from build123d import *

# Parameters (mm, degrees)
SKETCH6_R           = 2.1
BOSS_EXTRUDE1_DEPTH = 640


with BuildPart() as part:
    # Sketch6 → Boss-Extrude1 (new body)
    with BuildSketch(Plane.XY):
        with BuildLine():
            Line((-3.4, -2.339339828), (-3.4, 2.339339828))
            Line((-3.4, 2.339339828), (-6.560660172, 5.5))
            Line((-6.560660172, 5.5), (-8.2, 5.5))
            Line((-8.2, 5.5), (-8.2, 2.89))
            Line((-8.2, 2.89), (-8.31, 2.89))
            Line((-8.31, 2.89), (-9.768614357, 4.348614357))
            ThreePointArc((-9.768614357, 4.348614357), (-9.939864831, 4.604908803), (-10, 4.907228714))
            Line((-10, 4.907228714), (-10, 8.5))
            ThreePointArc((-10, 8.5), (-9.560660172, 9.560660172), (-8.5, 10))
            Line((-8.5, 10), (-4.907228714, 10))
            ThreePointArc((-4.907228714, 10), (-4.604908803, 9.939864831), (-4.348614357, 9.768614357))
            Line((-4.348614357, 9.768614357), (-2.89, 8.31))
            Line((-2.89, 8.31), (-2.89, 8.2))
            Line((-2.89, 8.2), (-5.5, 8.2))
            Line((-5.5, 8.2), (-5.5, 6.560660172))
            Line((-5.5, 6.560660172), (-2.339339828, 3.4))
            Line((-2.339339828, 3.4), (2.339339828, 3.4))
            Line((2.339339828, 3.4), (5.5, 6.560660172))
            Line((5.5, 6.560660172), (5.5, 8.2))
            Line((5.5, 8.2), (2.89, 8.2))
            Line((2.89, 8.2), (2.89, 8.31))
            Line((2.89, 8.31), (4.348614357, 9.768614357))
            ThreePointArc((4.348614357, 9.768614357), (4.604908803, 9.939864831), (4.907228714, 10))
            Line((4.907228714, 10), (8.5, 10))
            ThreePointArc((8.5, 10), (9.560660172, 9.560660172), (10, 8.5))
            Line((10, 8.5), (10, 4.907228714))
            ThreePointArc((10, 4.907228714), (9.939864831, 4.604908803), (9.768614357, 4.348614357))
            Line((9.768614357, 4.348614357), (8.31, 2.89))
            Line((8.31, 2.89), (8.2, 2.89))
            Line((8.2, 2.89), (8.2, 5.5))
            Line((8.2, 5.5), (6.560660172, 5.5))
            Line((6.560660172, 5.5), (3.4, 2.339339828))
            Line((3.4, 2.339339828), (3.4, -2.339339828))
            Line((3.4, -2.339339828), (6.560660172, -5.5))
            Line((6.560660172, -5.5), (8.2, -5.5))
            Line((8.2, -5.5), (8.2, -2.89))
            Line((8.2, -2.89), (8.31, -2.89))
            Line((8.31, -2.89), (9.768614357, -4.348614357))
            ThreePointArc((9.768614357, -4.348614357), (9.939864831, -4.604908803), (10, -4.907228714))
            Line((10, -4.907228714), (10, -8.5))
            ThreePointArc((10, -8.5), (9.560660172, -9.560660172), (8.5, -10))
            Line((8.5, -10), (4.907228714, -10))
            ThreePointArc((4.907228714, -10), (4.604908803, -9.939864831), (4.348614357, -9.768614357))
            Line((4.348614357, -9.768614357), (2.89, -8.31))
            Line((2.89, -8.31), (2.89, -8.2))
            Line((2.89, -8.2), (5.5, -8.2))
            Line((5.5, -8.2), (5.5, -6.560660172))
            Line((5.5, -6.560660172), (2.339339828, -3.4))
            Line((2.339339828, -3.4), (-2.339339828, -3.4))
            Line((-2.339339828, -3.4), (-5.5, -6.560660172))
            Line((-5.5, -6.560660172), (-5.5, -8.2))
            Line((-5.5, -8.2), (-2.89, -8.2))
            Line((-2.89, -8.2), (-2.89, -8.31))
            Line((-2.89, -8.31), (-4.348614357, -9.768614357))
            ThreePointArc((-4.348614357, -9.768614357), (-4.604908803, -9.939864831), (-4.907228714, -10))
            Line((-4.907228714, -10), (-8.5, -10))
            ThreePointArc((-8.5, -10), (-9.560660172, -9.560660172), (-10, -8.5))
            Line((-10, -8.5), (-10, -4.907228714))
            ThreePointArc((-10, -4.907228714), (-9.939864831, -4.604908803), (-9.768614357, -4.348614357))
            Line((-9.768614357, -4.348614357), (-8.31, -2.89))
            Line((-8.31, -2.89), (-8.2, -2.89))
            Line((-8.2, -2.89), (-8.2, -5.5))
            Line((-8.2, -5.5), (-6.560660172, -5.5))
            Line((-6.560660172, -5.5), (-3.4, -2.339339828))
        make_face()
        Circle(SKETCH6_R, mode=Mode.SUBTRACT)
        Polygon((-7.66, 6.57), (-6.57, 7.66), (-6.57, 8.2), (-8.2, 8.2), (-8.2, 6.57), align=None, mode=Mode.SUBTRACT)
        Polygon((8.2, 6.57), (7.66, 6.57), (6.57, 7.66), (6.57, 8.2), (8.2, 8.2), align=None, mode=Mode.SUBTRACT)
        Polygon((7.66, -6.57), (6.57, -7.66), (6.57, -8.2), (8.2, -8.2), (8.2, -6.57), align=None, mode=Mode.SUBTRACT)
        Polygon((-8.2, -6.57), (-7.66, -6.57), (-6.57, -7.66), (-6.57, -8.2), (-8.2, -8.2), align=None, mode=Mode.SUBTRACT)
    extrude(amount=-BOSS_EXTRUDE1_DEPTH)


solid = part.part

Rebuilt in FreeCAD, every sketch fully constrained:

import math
import FreeCAD as App
import Part
import Sketcher
from FreeCAD import Vector
Q = App.Units.Quantity


def add_polygon(sketch, points):
    """Adds a closed chain of lines whose ends are joined by coincident constraints."""
    first, n = sketch.GeometryCount, len(points)
    for a, b in zip(points, points[1:] + points[:1]):
        sketch.addGeometry(Part.LineSegment(App.Vector(*a, 0), App.Vector(*b, 0)), False)
    for i in range(n):
        sketch.addConstraint(Sketcher.Constraint("Coincident", first + i, 2, first + (i + 1) % n, 1))

doc = App.newDocument("Part")
body = doc.addObject("PartDesign::Body", "Body")

# Sketch on XY plane
sketch1 = body.newObject("Sketcher::SketchObject", "Sketch")
sketch1.AttachmentSupport = (doc.getObject("XY_Plane"), [""])
sketch1.MapMode = "FlatFace"
sketch1.addGeometry(Part.LineSegment(Vector(-3.4, 2.34, 0), Vector(-3.4, -2.34, 0)), False)  # 0
sketch1.addGeometry(Part.LineSegment(Vector(-3.4, -2.34, 0), Vector(-6.56, -5.5, 0)), False)  # 1
sketch1.addGeometry(Part.LineSegment(Vector(-6.56, -5.5, 0), Vector(-8.2, -5.5, 0)), False)  # 2
sketch1.addGeometry(Part.LineSegment(Vector(-8.2, -5.5, 0), Vector(-8.2, -2.89, 0)), False)  # 3
sketch1.addGeometry(Part.LineSegment(Vector(-8.2, -2.89, 0), Vector(-8.31, -2.89, 0)), False)  # 4
sketch1.addGeometry(Part.LineSegment(Vector(-8.31, -2.89, 0), Vector(-9.77, -4.35, 0)), False)  # 5
sketch1.addGeometry(Part.ArcOfCircle(Part.Circle(Vector(-9.21, -4.91, 0), Vector(0, 0, 1), 0.79), math.radians(135), math.radians(180)), False)  # 6
sketch1.addGeometry(Part.LineSegment(Vector(-10, -4.91, 0), Vector(-10, -8.5, 0)), False)  # 7
sketch1.addGeometry(Part.ArcOfCircle(Part.Circle(Vector(-8.5, -8.5, 0), Vector(0, 0, 1), 1.5), math.radians(180), math.radians(270)), False)  # 8
sketch1.addGeometry(Part.LineSegment(Vector(-8.5, -10, 0), Vector(-4.91, -10, 0)), False)  # 9
sketch1.addGeometry(Part.ArcOfCircle(Part.Circle(Vector(-4.91, -9.21, 0), Vector(0, 0, 1), 0.79), math.radians(-90), math.radians(-45)), False)  # 10
sketch1.addGeometry(Part.LineSegment(Vector(-4.35, -9.77, 0), Vector(-2.89, -8.31, 0)), False)  # 11
sketch1.addGeometry(Part.LineSegment(Vector(-2.89, -8.31, 0), Vector(-2.89, -8.2, 0)), False)  # 12
sketch1.addGeometry(Part.LineSegment(Vector(-2.89, -8.2, 0), Vector(-5.5, -8.2, 0)), False)  # 13
sketch1.addGeometry(Part.LineSegment(Vector(-5.5, -8.2, 0), Vector(-5.5, -6.56, 0)), False)  # 14
sketch1.addGeometry(Part.LineSegment(Vector(-5.5, -6.56, 0), Vector(-2.34, -3.4, 0)), False)  # 15
sketch1.addGeometry(Part.LineSegment(Vector(-2.34, -3.4, 0), Vector(2.34, -3.4, 0)), False)  # 16
sketch1.addGeometry(Part.LineSegment(Vector(2.34, -3.4, 0), Vector(5.5, -6.56, 0)), False)  # 17
sketch1.addGeometry(Part.LineSegment(Vector(5.5, -6.56, 0), Vector(5.5, -8.2, 0)), False)  # 18
sketch1.addGeometry(Part.LineSegment(Vector(5.5, -8.2, 0), Vector(2.89, -8.2, 0)), False)  # 19
sketch1.addGeometry(Part.LineSegment(Vector(2.89, -8.2, 0), Vector(2.89, -8.31, 0)), False)  # 20
sketch1.addGeometry(Part.LineSegment(Vector(2.89, -8.31, 0), Vector(4.35, -9.77, 0)), False)  # 21
sketch1.addGeometry(Part.ArcOfCircle(Part.Circle(Vector(4.91, -9.21, 0), Vector(0, 0, 1), 0.79), math.radians(-135), math.radians(-90)), False)  # 22
sketch1.addGeometry(Part.LineSegment(Vector(4.91, -10, 0), Vector(8.5, -10, 0)), False)  # 23
sketch1.addGeometry(Part.ArcOfCircle(Part.Circle(Vector(8.5, -8.5, 0), Vector(0, 0, 1), 1.5), math.radians(-90), math.radians(0)), False)  # 24
sketch1.addGeometry(Part.LineSegment(Vector(10, -8.5, 0), Vector(10, -4.91, 0)), False)  # 25
sketch1.addGeometry(Part.ArcOfCircle(Part.Circle(Vector(9.21, -4.91, 0), Vector(0, 0, 1), 0.79), math.radians(0), math.radians(45)), False)  # 26
sketch1.addGeometry(Part.LineSegment(Vector(9.77, -4.35, 0), Vector(8.31, -2.89, 0)), False)  # 27
sketch1.addGeometry(Part.LineSegment(Vector(8.31, -2.89, 0), Vector(8.2, -2.89, 0)), False)  # 28
sketch1.addGeometry(Part.LineSegment(Vector(8.2, -2.89, 0), Vector(8.2, -5.5, 0)), False)  # 29
sketch1.addGeometry(Part.LineSegment(Vector(8.2, -5.5, 0), Vector(6.56, -5.5, 0)), False)  # 30
sketch1.addGeometry(Part.LineSegment(Vector(6.56, -5.5, 0), Vector(3.4, -2.34, 0)), False)  # 31
sketch1.addGeometry(Part.LineSegment(Vector(3.4, -2.34, 0), Vector(3.4, 2.34, 0)), False)  # 32
sketch1.addGeometry(Part.LineSegment(Vector(3.4, 2.34, 0), Vector(6.56, 5.5, 0)), False)  # 33
sketch1.addGeometry(Part.LineSegment(Vector(6.56, 5.5, 0), Vector(8.2, 5.5, 0)), False)  # 34
sketch1.addGeometry(Part.LineSegment(Vector(8.2, 5.5, 0), Vector(8.2, 2.89, 0)), False)  # 35
sketch1.addGeometry(Part.LineSegment(Vector(8.2, 2.89, 0), Vector(8.31, 2.89, 0)), False)  # 36
sketch1.addGeometry(Part.LineSegment(Vector(8.31, 2.89, 0), Vector(9.77, 4.35, 0)), False)  # 37
sketch1.addGeometry(Part.ArcOfCircle(Part.Circle(Vector(9.21, 4.91, 0), Vector(0, 0, 1), 0.79), math.radians(-45), math.radians(0)), False)  # 38
sketch1.addGeometry(Part.LineSegment(Vector(10, 4.91, 0), Vector(10, 8.5, 0)), False)  # 39
sketch1.addGeometry(Part.ArcOfCircle(Part.Circle(Vector(8.5, 8.5, 0), Vector(0, 0, 1), 1.5), math.radians(0), math.radians(90)), False)  # 40
sketch1.addGeometry(Part.LineSegment(Vector(8.5, 10, 0), Vector(4.91, 10, 0)), False)  # 41
sketch1.addGeometry(Part.ArcOfCircle(Part.Circle(Vector(4.91, 9.21, 0), Vector(0, 0, 1), 0.79), math.radians(90), math.radians(135)), False)  # 42
sketch1.addGeometry(Part.LineSegment(Vector(4.35, 9.77, 0), Vector(2.89, 8.31, 0)), False)  # 43
sketch1.addGeometry(Part.LineSegment(Vector(2.89, 8.31, 0), Vector(2.89, 8.2, 0)), False)  # 44
sketch1.addGeometry(Part.LineSegment(Vector(2.89, 8.2, 0), Vector(5.5, 8.2, 0)), False)  # 45
sketch1.addGeometry(Part.LineSegment(Vector(5.5, 8.2, 0), Vector(5.5, 6.56, 0)), False)  # 46
sketch1.addGeometry(Part.LineSegment(Vector(5.5, 6.56, 0), Vector(2.34, 3.4, 0)), False)  # 47
sketch1.addGeometry(Part.LineSegment(Vector(2.34, 3.4, 0), Vector(-2.34, 3.4, 0)), False)  # 48
sketch1.addGeometry(Part.LineSegment(Vector(-2.34, 3.4, 0), Vector(-5.5, 6.56, 0)), False)  # 49
sketch1.addGeometry(Part.LineSegment(Vector(-5.5, 6.56, 0), Vector(-5.5, 8.2, 0)), False)  # 50
sketch1.addGeometry(Part.LineSegment(Vector(-5.5, 8.2, 0), Vector(-2.89, 8.2, 0)), False)  # 51
sketch1.addGeometry(Part.LineSegment(Vector(-2.89, 8.2, 0), Vector(-2.89, 8.31, 0)), False)  # 52
sketch1.addGeometry(Part.LineSegment(Vector(-2.89, 8.31, 0), Vector(-4.35, 9.77, 0)), False)  # 53
sketch1.addGeometry(Part.ArcOfCircle(Part.Circle(Vector(-4.91, 9.21, 0), Vector(0, 0, 1), 0.79), math.radians(45), math.radians(90)), False)  # 54
sketch1.addGeometry(Part.LineSegment(Vector(-4.91, 10, 0), Vector(-8.5, 10, 0)), False)  # 55
sketch1.addGeometry(Part.ArcOfCircle(Part.Circle(Vector(-8.5, 8.5, 0), Vector(0, 0, 1), 1.5), math.radians(90), math.radians(180)), False)  # 56
sketch1.addGeometry(Part.LineSegment(Vector(-10, 8.5, 0), Vector(-10, 4.91, 0)), False)  # 57
sketch1.addGeometry(Part.ArcOfCircle(Part.Circle(Vector(-9.21, 4.91, 0), Vector(0, 0, 1), 0.79), math.radians(180), math.radians(225)), False)  # 58
sketch1.addGeometry(Part.LineSegment(Vector(-9.77, 4.35, 0), Vector(-8.31, 2.89, 0)), False)  # 59
sketch1.addGeometry(Part.LineSegment(Vector(-8.31, 2.89, 0), Vector(-8.2, 2.89, 0)), False)  # 60
sketch1.addGeometry(Part.LineSegment(Vector(-8.2, 2.89, 0), Vector(-8.2, 5.5, 0)), False)  # 61
sketch1.addGeometry(Part.LineSegment(Vector(-8.2, 5.5, 0), Vector(-6.56, 5.5, 0)), False)  # 62
sketch1.addGeometry(Part.LineSegment(Vector(-6.56, 5.5, 0), Vector(-3.4, 2.34, 0)), False)  # 63
add_polygon(sketch1, [(7.66, -6.57), (8.2, -6.57), (8.2, -8.2), (6.57, -8.2), (6.57, -7.66)])  # lines 64-68
add_polygon(sketch1, [(-8.2, -6.57), (-7.66, -6.57), (-6.57, -7.66), (-6.57, -8.2), (-8.2, -8.2)])  # lines 69-73
add_polygon(sketch1, [(8.2, 6.57), (7.66, 6.57), (6.57, 7.66), (6.57, 8.2), (8.2, 8.2)])  # lines 74-78
sketch1.addGeometry(Part.Circle(Vector(0, 0, 0), Vector(0, 0, 1), 2.1), False)  # 79
add_polygon(sketch1, [(-7.66, 6.57), (-8.2, 6.57), (-8.2, 8.2), (-6.57, 8.2), (-6.57, 7.66)])  # lines 80-84
sketch1.addConstraint(Sketcher.Constraint("Coincident", 0, 2, 1, 1))
sketch1.addConstraint(Sketcher.Constraint("Coincident", 1, 2, 2, 1))
sketch1.addConstraint(Sketcher.Constraint("Coincident", 2, 2, 3, 1))
sketch1.addConstraint(Sketcher.Constraint("Coincident", 3, 2, 4, 1))
sketch1.addConstraint(Sketcher.Constraint("Coincident", 4, 2, 5, 1))
sketch1.addConstraint(Sketcher.Constraint("Tangent", 5, 2, 6, 1))
sketch1.addConstraint(Sketcher.Constraint("Tangent", 6, 2, 7, 1))
sketch1.addConstraint(Sketcher.Constraint("Tangent", 7, 2, 8, 1))
sketch1.addConstraint(Sketcher.Constraint("Tangent", 8, 2, 9, 1))
sketch1.addConstraint(Sketcher.Constraint("Tangent", 9, 2, 10, 1))
sketch1.addConstraint(Sketcher.Constraint("Tangent", 10, 2, 11, 1))
sketch1.addConstraint(Sketcher.Constraint("Coincident", 11, 2, 12, 1))
sketch1.addConstraint(Sketcher.Constraint("Coincident", 12, 2, 13, 1))
sketch1.addConstraint(Sketcher.Constraint("Coincident", 13, 2, 14, 1))
sketch1.addConstraint(Sketcher.Constraint("Coincident", 14, 2, 15, 1))
sketch1.addConstraint(Sketcher.Constraint("Coincident", 15, 2, 16, 1))
sketch1.addConstraint(Sketcher.Constraint("Coincident", 16, 2, 17, 1))
sketch1.addConstraint(Sketcher.Constraint("Coincident", 17, 2, 18, 1))
sketch1.addConstraint(Sketcher.Constraint("Coincident", 18, 2, 19, 1))
sketch1.addConstraint(Sketcher.Constraint("Coincident", 19, 2, 20, 1))
sketch1.addConstraint(Sketcher.Constraint("Coincident", 20, 2, 21, 1))
sketch1.addConstraint(Sketcher.Constraint("Tangent", 21, 2, 22, 1))
sketch1.addConstraint(Sketcher.Constraint("Tangent", 22, 2, 23, 1))
sketch1.addConstraint(Sketcher.Constraint("Tangent", 23, 2, 24, 1))
sketch1.addConstraint(Sketcher.Constraint("Tangent", 24, 2, 25, 1))
sketch1.addConstraint(Sketcher.Constraint("Tangent", 25, 2, 26, 1))
sketch1.addConstraint(Sketcher.Constraint("Tangent", 26, 2, 27, 1))
sketch1.addConstraint(Sketcher.Constraint("Coincident", 27, 2, 28, 1))
sketch1.addConstraint(Sketcher.Constraint("Coincident", 28, 2, 29, 1))
sketch1.addConstraint(Sketcher.Constraint("Coincident", 29, 2, 30, 1))
sketch1.addConstraint(Sketcher.Constraint("Coincident", 30, 2, 31, 1))
sketch1.addConstraint(Sketcher.Constraint("Coincident", 31, 2, 32, 1))
sketch1.addConstraint(Sketcher.Constraint("Coincident", 32, 2, 33, 1))
sketch1.addConstraint(Sketcher.Constraint("Coincident", 33, 2, 34, 1))
sketch1.addConstraint(Sketcher.Constraint("Coincident", 34, 2, 35, 1))
sketch1.addConstraint(Sketcher.Constraint("Coincident", 35, 2, 36, 1))
sketch1.addConstraint(Sketcher.Constraint("Coincident", 36, 2, 37, 1))
sketch1.addConstraint(Sketcher.Constraint("Tangent", 37, 2, 38, 1))
sketch1.addConstraint(Sketcher.Constraint("Tangent", 38, 2, 39, 1))
sketch1.addConstraint(Sketcher.Constraint("Tangent", 39, 2, 40, 1))
sketch1.addConstraint(Sketcher.Constraint("Tangent", 40, 2, 41, 1))
sketch1.addConstraint(Sketcher.Constraint("Tangent", 41, 2, 42, 1))
sketch1.addConstraint(Sketcher.Constraint("Tangent", 42, 2, 43, 1))
sketch1.addConstraint(Sketcher.Constraint("Coincident", 43, 2, 44, 1))
sketch1.addConstraint(Sketcher.Constraint("Coincident", 44, 2, 45, 1))
sketch1.addConstraint(Sketcher.Constraint("Coincident", 45, 2, 46, 1))
sketch1.addConstraint(Sketcher.Constraint("Coincident", 46, 2, 47, 1))
sketch1.addConstraint(Sketcher.Constraint("Coincident", 47, 2, 48, 1))
sketch1.addConstraint(Sketcher.Constraint("Coincident", 48, 2, 49, 1))
sketch1.addConstraint(Sketcher.Constraint("Coincident", 49, 2, 50, 1))
sketch1.addConstraint(Sketcher.Constraint("Coincident", 50, 2, 51, 1))
sketch1.addConstraint(Sketcher.Constraint("Coincident", 51, 2, 52, 1))
sketch1.addConstraint(Sketcher.Constraint("Coincident", 52, 2, 53, 1))
sketch1.addConstraint(Sketcher.Constraint("Tangent", 53, 2, 54, 1))
sketch1.addConstraint(Sketcher.Constraint("Tangent", 54, 2, 55, 1))
sketch1.addConstraint(Sketcher.Constraint("Tangent", 55, 2, 56, 1))
sketch1.addConstraint(Sketcher.Constraint("Tangent", 56, 2, 57, 1))
sketch1.addConstraint(Sketcher.Constraint("Tangent", 57, 2, 58, 1))
sketch1.addConstraint(Sketcher.Constraint("Tangent", 58, 2, 59, 1))
sketch1.addConstraint(Sketcher.Constraint("Coincident", 59, 2, 60, 1))
sketch1.addConstraint(Sketcher.Constraint("Coincident", 60, 2, 61, 1))
sketch1.addConstraint(Sketcher.Constraint("Coincident", 61, 2, 62, 1))
sketch1.addConstraint(Sketcher.Constraint("Coincident", 62, 2, 63, 1))
sketch1.addConstraint(Sketcher.Constraint("Coincident", 63, 2, 0, 1))
sketch1.addConstraint(Sketcher.Constraint("Vertical", 0))
sketch1.addConstraint(Sketcher.Constraint("Horizontal", 2))
sketch1.addConstraint(Sketcher.Constraint("Vertical", 3))
sketch1.addConstraint(Sketcher.Constraint("Horizontal", 4))
sketch1.addConstraint(Sketcher.Constraint("Vertical", 7))
sketch1.addConstraint(Sketcher.Constraint("Horizontal", 9))
sketch1.addConstraint(Sketcher.Constraint("Vertical", 12))
sketch1.addConstraint(Sketcher.Constraint("Horizontal", 13))
sketch1.addConstraint(Sketcher.Constraint("Vertical", 14))
sketch1.addConstraint(Sketcher.Constraint("Horizontal", 16))
sketch1.addConstraint(Sketcher.Constraint("Vertical", 18))
sketch1.addConstraint(Sketcher.Constraint("Horizontal", 19))
sketch1.addConstraint(Sketcher.Constraint("Vertical", 20))
sketch1.addConstraint(Sketcher.Constraint("Horizontal", 23))
sketch1.addConstraint(Sketcher.Constraint("Vertical", 25))
sketch1.addConstraint(Sketcher.Constraint("Horizontal", 28))
sketch1.addConstraint(Sketcher.Constraint("Vertical", 29))
sketch1.addConstraint(Sketcher.Constraint("Horizontal", 30))
sketch1.addConstraint(Sketcher.Constraint("Vertical", 32))
sketch1.addConstraint(Sketcher.Constraint("Horizontal", 34))
sketch1.addConstraint(Sketcher.Constraint("Vertical", 35))
sketch1.addConstraint(Sketcher.Constraint("Horizontal", 36))
sketch1.addConstraint(Sketcher.Constraint("Vertical", 39))
sketch1.addConstraint(Sketcher.Constraint("Horizontal", 41))
sketch1.addConstraint(Sketcher.Constraint("Vertical", 44))
sketch1.addConstraint(Sketcher.Constraint("Horizontal", 45))
sketch1.addConstraint(Sketcher.Constraint("Vertical", 46))
sketch1.addConstraint(Sketcher.Constraint("Horizontal", 48))
sketch1.addConstraint(Sketcher.Constraint("Vertical", 50))
sketch1.addConstraint(Sketcher.Constraint("Horizontal", 51))
sketch1.addConstraint(Sketcher.Constraint("Vertical", 52))
sketch1.addConstraint(Sketcher.Constraint("Horizontal", 55))
sketch1.addConstraint(Sketcher.Constraint("Vertical", 57))
sketch1.addConstraint(Sketcher.Constraint("Horizontal", 60))
sketch1.addConstraint(Sketcher.Constraint("Vertical", 61))
sketch1.addConstraint(Sketcher.Constraint("Horizontal", 62))
sketch1.addConstraint(Sketcher.Constraint("Horizontal", 64))
sketch1.addConstraint(Sketcher.Constraint("Vertical", 65))
sketch1.addConstraint(Sketcher.Constraint("Horizontal", 66))
sketch1.addConstraint(Sketcher.Constraint("Vertical", 67))
sketch1.addConstraint(Sketcher.Constraint("Horizontal", 69))
sketch1.addConstraint(Sketcher.Constraint("Vertical", 71))
sketch1.addConstraint(Sketcher.Constraint("Horizontal", 72))
sketch1.addConstraint(Sketcher.Constraint("Vertical", 73))
sketch1.addConstraint(Sketcher.Constraint("Horizontal", 74))
sketch1.addConstraint(Sketcher.Constraint("Vertical", 76))
sketch1.addConstraint(Sketcher.Constraint("Horizontal", 77))
sketch1.addConstraint(Sketcher.Constraint("Vertical", 78))
sketch1.addConstraint(Sketcher.Constraint("Horizontal", 80))
sketch1.addConstraint(Sketcher.Constraint("Vertical", 81))
sketch1.addConstraint(Sketcher.Constraint("Horizontal", 82))
sketch1.addConstraint(Sketcher.Constraint("Vertical", 83))
sketch1.addConstraint(Sketcher.Constraint("Coincident", 79, 3, -1, 1))
sketch1.addConstraint(Sketcher.Constraint("Equal", 6, 10))
sketch1.addConstraint(Sketcher.Constraint("Equal", 10, 22))
sketch1.addConstraint(Sketcher.Constraint("Equal", 8, 24))
sketch1.addConstraint(Sketcher.Constraint("Equal", 22, 26))
sketch1.addConstraint(Sketcher.Constraint("Equal", 26, 38))
sketch1.addConstraint(Sketcher.Constraint("Equal", 24, 40))
sketch1.addConstraint(Sketcher.Constraint("Equal", 38, 42))
sketch1.addConstraint(Sketcher.Constraint("Equal", 42, 54))
sketch1.addConstraint(Sketcher.Constraint("Equal", 40, 56))
sketch1.addConstraint(Sketcher.Constraint("Equal", 54, 58))
sketch1.addConstraint(Sketcher.Constraint("Symmetric", 6, 3, 38, 3, -1, 1))
sketch1.addConstraint(Sketcher.Constraint("Symmetric", 10, 3, 42, 3, -1, 1))
sketch1.addConstraint(Sketcher.Constraint("Symmetric", 22, 3, 54, 3, -1, 1))
sketch1.addConstraint(Sketcher.Constraint("Symmetric", 26, 3, 58, 3, -1, 1))
sketch1.addConstraint(Sketcher.Constraint("Symmetric", 0, 2, 32, 2, -1, 1))
sketch1.addConstraint(Sketcher.Constraint("Symmetric", 1, 2, 33, 2, -1, 1))
sketch1.addConstraint(Sketcher.Constraint("Symmetric", 3, 2, 35, 2, -1, 1))
sketch1.addConstraint(Sketcher.Constraint("Symmetric", 11, 2, 43, 2, -1, 1))
sketch1.addConstraint(Sketcher.Constraint("Symmetric", 13, 2, 45, 2, -1, 1))
sketch1.addConstraint(Sketcher.Constraint("Symmetric", 15, 2, 47, 2, -1, 1))
sketch1.addConstraint(Sketcher.Constraint("Symmetric", 17, 2, 49, 2, -1, 1))
sketch1.addConstraint(Sketcher.Constraint("Symmetric", 19, 2, 51, 2, -1, 1))
sketch1.addConstraint(Sketcher.Constraint("Symmetric", 27, 2, 59, 2, -1, 1))
sketch1.addConstraint(Sketcher.Constraint("Symmetric", 29, 2, 61, 2, -1, 1))
sketch1.addConstraint(Sketcher.Constraint("Symmetric", 69, 2, 74, 2, -1, 1))
sketch1.addConstraint(Sketcher.Constraint("Symmetric", 70, 2, 75, 2, -1, 1))
sketch1.addConstraint(Sketcher.Constraint("Symmetric", 72, 2, 77, 2, -1, 1))
sketch1.addConstraint(Sketcher.Constraint("Symmetric", 64, 2, 80, 2, -1, 1))
sketch1.addConstraint(Sketcher.Constraint("Symmetric", 66, 2, 82, 2, -1, 1))
sketch1.addConstraint(Sketcher.Constraint("Symmetric", 10, 3, 22, 3, -2))
sketch1.addConstraint(Sketcher.Constraint("Symmetric", 6, 3, 26, 3, -2))
sketch1.addConstraint(Sketcher.Constraint("Symmetric", 14, 2, 17, 2, -2))
sketch1.addConstraint(Sketcher.Constraint("Symmetric", 12, 2, 19, 2, -2))
sketch1.addConstraint(Sketcher.Constraint("Symmetric", 4, 2, 27, 2, -2))
sketch1.addConstraint(Sketcher.Constraint("Symmetric", 2, 2, 29, 2, -2))
sketch1.addConstraint(Sketcher.Constraint("Symmetric", 68, 2, 69, 2, -2))
sketch1.addConstraint(Sketcher.Constraint("Symmetric", 67, 2, 70, 2, -2))
sketch1.addConstraint(Sketcher.Constraint("Symmetric", 65, 2, 72, 2, -2))
sketch1.addConstraint(Sketcher.Constraint("Parallel", 1, 5))
sketch1.addConstraint(Sketcher.Constraint("Parallel", 5, 11))
sketch1.addConstraint(Sketcher.Constraint("Parallel", 11, 15))
sketch1.addConstraint(Sketcher.Constraint("Perpendicular", 15, 17))
sketch1.addConstraint(Sketcher.Constraint("Parallel", 17, 21))
sketch1.addConstraint(Sketcher.Constraint("Parallel", 21, 27))
sketch1.addConstraint(Sketcher.Constraint("Parallel", 27, 31))
sketch1.addConstraint(Sketcher.Constraint("Parallel", 33, 37))
sketch1.addConstraint(Sketcher.Constraint("Parallel", 43, 47))
sketch1.addConstraint(Sketcher.Constraint("Perpendicular", 47, 49))
sketch1.addConstraint(Sketcher.Constraint("Parallel", 49, 53))
sketch1.addConstraint(Sketcher.Constraint("Parallel", 59, 63))
sketch1.addConstraint(Sketcher.Constraint("Perpendicular", 63, 68))
sketch1.addConstraint(Sketcher.Constraint("Perpendicular", 75, 84))
sketch1.addConstraint(Sketcher.Constraint("Horizontal", 0, 2, 31, 2))
sketch1.addConstraint(Sketcher.Constraint("Horizontal", 32, 2, 63, 2))
sketch1.addConstraint(Sketcher.Constraint("Horizontal", 19, 2, 65, 2))
sketch1.addConstraint(Sketcher.Constraint("Horizontal", 75, 2, 83, 2))
sketch1.addConstraint(Sketcher.Constraint("Vertical", 35, 2, 64, 2))
sketch1.addConstraint(Sketcher.Constraint("Equal", 48, 0))
sketch1.addConstraint(Sketcher.Constraint("Equal", 51, 3))
sketch1.addConstraint(Sketcher.Constraint("Equal", 55, 7))
sketch1.addConstraint(Sketcher.Constraint("Equal", 60, 12))
sketch1.addConstraint(Sketcher.Constraint("Equal", 62, 14))
sketch1.addConstraint(Sketcher.Constraint("Equal", 82, 65))
sketch1.addConstraint(Sketcher.Constraint("Equal", 5, 11))
sketch1.addConstraint(Sketcher.Constraint("Equal", 1, 15))
sketch1.addConstraint(Sketcher.Constraint("Diameter", 79, Q("4.2 mm")))
sketch1.addConstraint(Sketcher.Constraint("Radius", 8, Q("1.5 mm")))
sketch1.addConstraint(Sketcher.Constraint("Radius", 6, Q("0.79 mm")))
sketch1.addConstraint(Sketcher.Constraint("DistanceX", 6, 2, -1, 1, Q("10 mm")))
sketch1.addConstraint(Sketcher.Constraint("DistanceX", 4, 2, 4, 1, Q("0.11 mm")))
sketch1.addConstraint(Sketcher.Constraint("DistanceX", 13, 2, 13, 1, Q("2.61 mm")))
sketch1.addConstraint(Sketcher.Constraint("DistanceX", 64, 1, 64, 2, Q("0.54 mm")))
sketch1.addConstraint(Sketcher.Constraint("DistanceX", 66, 2, 66, 1, Q("1.63 mm")))
sketch1.addConstraint(Sketcher.Constraint("DistanceX", 0, 2, -1, 1, Q("3.4 mm")))
sketch1.addConstraint(Sketcher.Constraint("DistanceY", 1, 2, -1, 1, Q("5.5 mm")))
sketch1.addConstraint(Sketcher.Constraint("DistanceX", 2, 2, -1, 1, Q("8.2 mm")))
sketch1.addConstraint(Sketcher.Constraint("DistanceX", 2, 2, 2, 1, Q("1.63934 mm")))
pad1 = body.newObject("PartDesign::Pad", "Pad")
pad1.Profile = sketch1
pad1.Length = 640
pad1.Reversed = True

doc.recompute()
